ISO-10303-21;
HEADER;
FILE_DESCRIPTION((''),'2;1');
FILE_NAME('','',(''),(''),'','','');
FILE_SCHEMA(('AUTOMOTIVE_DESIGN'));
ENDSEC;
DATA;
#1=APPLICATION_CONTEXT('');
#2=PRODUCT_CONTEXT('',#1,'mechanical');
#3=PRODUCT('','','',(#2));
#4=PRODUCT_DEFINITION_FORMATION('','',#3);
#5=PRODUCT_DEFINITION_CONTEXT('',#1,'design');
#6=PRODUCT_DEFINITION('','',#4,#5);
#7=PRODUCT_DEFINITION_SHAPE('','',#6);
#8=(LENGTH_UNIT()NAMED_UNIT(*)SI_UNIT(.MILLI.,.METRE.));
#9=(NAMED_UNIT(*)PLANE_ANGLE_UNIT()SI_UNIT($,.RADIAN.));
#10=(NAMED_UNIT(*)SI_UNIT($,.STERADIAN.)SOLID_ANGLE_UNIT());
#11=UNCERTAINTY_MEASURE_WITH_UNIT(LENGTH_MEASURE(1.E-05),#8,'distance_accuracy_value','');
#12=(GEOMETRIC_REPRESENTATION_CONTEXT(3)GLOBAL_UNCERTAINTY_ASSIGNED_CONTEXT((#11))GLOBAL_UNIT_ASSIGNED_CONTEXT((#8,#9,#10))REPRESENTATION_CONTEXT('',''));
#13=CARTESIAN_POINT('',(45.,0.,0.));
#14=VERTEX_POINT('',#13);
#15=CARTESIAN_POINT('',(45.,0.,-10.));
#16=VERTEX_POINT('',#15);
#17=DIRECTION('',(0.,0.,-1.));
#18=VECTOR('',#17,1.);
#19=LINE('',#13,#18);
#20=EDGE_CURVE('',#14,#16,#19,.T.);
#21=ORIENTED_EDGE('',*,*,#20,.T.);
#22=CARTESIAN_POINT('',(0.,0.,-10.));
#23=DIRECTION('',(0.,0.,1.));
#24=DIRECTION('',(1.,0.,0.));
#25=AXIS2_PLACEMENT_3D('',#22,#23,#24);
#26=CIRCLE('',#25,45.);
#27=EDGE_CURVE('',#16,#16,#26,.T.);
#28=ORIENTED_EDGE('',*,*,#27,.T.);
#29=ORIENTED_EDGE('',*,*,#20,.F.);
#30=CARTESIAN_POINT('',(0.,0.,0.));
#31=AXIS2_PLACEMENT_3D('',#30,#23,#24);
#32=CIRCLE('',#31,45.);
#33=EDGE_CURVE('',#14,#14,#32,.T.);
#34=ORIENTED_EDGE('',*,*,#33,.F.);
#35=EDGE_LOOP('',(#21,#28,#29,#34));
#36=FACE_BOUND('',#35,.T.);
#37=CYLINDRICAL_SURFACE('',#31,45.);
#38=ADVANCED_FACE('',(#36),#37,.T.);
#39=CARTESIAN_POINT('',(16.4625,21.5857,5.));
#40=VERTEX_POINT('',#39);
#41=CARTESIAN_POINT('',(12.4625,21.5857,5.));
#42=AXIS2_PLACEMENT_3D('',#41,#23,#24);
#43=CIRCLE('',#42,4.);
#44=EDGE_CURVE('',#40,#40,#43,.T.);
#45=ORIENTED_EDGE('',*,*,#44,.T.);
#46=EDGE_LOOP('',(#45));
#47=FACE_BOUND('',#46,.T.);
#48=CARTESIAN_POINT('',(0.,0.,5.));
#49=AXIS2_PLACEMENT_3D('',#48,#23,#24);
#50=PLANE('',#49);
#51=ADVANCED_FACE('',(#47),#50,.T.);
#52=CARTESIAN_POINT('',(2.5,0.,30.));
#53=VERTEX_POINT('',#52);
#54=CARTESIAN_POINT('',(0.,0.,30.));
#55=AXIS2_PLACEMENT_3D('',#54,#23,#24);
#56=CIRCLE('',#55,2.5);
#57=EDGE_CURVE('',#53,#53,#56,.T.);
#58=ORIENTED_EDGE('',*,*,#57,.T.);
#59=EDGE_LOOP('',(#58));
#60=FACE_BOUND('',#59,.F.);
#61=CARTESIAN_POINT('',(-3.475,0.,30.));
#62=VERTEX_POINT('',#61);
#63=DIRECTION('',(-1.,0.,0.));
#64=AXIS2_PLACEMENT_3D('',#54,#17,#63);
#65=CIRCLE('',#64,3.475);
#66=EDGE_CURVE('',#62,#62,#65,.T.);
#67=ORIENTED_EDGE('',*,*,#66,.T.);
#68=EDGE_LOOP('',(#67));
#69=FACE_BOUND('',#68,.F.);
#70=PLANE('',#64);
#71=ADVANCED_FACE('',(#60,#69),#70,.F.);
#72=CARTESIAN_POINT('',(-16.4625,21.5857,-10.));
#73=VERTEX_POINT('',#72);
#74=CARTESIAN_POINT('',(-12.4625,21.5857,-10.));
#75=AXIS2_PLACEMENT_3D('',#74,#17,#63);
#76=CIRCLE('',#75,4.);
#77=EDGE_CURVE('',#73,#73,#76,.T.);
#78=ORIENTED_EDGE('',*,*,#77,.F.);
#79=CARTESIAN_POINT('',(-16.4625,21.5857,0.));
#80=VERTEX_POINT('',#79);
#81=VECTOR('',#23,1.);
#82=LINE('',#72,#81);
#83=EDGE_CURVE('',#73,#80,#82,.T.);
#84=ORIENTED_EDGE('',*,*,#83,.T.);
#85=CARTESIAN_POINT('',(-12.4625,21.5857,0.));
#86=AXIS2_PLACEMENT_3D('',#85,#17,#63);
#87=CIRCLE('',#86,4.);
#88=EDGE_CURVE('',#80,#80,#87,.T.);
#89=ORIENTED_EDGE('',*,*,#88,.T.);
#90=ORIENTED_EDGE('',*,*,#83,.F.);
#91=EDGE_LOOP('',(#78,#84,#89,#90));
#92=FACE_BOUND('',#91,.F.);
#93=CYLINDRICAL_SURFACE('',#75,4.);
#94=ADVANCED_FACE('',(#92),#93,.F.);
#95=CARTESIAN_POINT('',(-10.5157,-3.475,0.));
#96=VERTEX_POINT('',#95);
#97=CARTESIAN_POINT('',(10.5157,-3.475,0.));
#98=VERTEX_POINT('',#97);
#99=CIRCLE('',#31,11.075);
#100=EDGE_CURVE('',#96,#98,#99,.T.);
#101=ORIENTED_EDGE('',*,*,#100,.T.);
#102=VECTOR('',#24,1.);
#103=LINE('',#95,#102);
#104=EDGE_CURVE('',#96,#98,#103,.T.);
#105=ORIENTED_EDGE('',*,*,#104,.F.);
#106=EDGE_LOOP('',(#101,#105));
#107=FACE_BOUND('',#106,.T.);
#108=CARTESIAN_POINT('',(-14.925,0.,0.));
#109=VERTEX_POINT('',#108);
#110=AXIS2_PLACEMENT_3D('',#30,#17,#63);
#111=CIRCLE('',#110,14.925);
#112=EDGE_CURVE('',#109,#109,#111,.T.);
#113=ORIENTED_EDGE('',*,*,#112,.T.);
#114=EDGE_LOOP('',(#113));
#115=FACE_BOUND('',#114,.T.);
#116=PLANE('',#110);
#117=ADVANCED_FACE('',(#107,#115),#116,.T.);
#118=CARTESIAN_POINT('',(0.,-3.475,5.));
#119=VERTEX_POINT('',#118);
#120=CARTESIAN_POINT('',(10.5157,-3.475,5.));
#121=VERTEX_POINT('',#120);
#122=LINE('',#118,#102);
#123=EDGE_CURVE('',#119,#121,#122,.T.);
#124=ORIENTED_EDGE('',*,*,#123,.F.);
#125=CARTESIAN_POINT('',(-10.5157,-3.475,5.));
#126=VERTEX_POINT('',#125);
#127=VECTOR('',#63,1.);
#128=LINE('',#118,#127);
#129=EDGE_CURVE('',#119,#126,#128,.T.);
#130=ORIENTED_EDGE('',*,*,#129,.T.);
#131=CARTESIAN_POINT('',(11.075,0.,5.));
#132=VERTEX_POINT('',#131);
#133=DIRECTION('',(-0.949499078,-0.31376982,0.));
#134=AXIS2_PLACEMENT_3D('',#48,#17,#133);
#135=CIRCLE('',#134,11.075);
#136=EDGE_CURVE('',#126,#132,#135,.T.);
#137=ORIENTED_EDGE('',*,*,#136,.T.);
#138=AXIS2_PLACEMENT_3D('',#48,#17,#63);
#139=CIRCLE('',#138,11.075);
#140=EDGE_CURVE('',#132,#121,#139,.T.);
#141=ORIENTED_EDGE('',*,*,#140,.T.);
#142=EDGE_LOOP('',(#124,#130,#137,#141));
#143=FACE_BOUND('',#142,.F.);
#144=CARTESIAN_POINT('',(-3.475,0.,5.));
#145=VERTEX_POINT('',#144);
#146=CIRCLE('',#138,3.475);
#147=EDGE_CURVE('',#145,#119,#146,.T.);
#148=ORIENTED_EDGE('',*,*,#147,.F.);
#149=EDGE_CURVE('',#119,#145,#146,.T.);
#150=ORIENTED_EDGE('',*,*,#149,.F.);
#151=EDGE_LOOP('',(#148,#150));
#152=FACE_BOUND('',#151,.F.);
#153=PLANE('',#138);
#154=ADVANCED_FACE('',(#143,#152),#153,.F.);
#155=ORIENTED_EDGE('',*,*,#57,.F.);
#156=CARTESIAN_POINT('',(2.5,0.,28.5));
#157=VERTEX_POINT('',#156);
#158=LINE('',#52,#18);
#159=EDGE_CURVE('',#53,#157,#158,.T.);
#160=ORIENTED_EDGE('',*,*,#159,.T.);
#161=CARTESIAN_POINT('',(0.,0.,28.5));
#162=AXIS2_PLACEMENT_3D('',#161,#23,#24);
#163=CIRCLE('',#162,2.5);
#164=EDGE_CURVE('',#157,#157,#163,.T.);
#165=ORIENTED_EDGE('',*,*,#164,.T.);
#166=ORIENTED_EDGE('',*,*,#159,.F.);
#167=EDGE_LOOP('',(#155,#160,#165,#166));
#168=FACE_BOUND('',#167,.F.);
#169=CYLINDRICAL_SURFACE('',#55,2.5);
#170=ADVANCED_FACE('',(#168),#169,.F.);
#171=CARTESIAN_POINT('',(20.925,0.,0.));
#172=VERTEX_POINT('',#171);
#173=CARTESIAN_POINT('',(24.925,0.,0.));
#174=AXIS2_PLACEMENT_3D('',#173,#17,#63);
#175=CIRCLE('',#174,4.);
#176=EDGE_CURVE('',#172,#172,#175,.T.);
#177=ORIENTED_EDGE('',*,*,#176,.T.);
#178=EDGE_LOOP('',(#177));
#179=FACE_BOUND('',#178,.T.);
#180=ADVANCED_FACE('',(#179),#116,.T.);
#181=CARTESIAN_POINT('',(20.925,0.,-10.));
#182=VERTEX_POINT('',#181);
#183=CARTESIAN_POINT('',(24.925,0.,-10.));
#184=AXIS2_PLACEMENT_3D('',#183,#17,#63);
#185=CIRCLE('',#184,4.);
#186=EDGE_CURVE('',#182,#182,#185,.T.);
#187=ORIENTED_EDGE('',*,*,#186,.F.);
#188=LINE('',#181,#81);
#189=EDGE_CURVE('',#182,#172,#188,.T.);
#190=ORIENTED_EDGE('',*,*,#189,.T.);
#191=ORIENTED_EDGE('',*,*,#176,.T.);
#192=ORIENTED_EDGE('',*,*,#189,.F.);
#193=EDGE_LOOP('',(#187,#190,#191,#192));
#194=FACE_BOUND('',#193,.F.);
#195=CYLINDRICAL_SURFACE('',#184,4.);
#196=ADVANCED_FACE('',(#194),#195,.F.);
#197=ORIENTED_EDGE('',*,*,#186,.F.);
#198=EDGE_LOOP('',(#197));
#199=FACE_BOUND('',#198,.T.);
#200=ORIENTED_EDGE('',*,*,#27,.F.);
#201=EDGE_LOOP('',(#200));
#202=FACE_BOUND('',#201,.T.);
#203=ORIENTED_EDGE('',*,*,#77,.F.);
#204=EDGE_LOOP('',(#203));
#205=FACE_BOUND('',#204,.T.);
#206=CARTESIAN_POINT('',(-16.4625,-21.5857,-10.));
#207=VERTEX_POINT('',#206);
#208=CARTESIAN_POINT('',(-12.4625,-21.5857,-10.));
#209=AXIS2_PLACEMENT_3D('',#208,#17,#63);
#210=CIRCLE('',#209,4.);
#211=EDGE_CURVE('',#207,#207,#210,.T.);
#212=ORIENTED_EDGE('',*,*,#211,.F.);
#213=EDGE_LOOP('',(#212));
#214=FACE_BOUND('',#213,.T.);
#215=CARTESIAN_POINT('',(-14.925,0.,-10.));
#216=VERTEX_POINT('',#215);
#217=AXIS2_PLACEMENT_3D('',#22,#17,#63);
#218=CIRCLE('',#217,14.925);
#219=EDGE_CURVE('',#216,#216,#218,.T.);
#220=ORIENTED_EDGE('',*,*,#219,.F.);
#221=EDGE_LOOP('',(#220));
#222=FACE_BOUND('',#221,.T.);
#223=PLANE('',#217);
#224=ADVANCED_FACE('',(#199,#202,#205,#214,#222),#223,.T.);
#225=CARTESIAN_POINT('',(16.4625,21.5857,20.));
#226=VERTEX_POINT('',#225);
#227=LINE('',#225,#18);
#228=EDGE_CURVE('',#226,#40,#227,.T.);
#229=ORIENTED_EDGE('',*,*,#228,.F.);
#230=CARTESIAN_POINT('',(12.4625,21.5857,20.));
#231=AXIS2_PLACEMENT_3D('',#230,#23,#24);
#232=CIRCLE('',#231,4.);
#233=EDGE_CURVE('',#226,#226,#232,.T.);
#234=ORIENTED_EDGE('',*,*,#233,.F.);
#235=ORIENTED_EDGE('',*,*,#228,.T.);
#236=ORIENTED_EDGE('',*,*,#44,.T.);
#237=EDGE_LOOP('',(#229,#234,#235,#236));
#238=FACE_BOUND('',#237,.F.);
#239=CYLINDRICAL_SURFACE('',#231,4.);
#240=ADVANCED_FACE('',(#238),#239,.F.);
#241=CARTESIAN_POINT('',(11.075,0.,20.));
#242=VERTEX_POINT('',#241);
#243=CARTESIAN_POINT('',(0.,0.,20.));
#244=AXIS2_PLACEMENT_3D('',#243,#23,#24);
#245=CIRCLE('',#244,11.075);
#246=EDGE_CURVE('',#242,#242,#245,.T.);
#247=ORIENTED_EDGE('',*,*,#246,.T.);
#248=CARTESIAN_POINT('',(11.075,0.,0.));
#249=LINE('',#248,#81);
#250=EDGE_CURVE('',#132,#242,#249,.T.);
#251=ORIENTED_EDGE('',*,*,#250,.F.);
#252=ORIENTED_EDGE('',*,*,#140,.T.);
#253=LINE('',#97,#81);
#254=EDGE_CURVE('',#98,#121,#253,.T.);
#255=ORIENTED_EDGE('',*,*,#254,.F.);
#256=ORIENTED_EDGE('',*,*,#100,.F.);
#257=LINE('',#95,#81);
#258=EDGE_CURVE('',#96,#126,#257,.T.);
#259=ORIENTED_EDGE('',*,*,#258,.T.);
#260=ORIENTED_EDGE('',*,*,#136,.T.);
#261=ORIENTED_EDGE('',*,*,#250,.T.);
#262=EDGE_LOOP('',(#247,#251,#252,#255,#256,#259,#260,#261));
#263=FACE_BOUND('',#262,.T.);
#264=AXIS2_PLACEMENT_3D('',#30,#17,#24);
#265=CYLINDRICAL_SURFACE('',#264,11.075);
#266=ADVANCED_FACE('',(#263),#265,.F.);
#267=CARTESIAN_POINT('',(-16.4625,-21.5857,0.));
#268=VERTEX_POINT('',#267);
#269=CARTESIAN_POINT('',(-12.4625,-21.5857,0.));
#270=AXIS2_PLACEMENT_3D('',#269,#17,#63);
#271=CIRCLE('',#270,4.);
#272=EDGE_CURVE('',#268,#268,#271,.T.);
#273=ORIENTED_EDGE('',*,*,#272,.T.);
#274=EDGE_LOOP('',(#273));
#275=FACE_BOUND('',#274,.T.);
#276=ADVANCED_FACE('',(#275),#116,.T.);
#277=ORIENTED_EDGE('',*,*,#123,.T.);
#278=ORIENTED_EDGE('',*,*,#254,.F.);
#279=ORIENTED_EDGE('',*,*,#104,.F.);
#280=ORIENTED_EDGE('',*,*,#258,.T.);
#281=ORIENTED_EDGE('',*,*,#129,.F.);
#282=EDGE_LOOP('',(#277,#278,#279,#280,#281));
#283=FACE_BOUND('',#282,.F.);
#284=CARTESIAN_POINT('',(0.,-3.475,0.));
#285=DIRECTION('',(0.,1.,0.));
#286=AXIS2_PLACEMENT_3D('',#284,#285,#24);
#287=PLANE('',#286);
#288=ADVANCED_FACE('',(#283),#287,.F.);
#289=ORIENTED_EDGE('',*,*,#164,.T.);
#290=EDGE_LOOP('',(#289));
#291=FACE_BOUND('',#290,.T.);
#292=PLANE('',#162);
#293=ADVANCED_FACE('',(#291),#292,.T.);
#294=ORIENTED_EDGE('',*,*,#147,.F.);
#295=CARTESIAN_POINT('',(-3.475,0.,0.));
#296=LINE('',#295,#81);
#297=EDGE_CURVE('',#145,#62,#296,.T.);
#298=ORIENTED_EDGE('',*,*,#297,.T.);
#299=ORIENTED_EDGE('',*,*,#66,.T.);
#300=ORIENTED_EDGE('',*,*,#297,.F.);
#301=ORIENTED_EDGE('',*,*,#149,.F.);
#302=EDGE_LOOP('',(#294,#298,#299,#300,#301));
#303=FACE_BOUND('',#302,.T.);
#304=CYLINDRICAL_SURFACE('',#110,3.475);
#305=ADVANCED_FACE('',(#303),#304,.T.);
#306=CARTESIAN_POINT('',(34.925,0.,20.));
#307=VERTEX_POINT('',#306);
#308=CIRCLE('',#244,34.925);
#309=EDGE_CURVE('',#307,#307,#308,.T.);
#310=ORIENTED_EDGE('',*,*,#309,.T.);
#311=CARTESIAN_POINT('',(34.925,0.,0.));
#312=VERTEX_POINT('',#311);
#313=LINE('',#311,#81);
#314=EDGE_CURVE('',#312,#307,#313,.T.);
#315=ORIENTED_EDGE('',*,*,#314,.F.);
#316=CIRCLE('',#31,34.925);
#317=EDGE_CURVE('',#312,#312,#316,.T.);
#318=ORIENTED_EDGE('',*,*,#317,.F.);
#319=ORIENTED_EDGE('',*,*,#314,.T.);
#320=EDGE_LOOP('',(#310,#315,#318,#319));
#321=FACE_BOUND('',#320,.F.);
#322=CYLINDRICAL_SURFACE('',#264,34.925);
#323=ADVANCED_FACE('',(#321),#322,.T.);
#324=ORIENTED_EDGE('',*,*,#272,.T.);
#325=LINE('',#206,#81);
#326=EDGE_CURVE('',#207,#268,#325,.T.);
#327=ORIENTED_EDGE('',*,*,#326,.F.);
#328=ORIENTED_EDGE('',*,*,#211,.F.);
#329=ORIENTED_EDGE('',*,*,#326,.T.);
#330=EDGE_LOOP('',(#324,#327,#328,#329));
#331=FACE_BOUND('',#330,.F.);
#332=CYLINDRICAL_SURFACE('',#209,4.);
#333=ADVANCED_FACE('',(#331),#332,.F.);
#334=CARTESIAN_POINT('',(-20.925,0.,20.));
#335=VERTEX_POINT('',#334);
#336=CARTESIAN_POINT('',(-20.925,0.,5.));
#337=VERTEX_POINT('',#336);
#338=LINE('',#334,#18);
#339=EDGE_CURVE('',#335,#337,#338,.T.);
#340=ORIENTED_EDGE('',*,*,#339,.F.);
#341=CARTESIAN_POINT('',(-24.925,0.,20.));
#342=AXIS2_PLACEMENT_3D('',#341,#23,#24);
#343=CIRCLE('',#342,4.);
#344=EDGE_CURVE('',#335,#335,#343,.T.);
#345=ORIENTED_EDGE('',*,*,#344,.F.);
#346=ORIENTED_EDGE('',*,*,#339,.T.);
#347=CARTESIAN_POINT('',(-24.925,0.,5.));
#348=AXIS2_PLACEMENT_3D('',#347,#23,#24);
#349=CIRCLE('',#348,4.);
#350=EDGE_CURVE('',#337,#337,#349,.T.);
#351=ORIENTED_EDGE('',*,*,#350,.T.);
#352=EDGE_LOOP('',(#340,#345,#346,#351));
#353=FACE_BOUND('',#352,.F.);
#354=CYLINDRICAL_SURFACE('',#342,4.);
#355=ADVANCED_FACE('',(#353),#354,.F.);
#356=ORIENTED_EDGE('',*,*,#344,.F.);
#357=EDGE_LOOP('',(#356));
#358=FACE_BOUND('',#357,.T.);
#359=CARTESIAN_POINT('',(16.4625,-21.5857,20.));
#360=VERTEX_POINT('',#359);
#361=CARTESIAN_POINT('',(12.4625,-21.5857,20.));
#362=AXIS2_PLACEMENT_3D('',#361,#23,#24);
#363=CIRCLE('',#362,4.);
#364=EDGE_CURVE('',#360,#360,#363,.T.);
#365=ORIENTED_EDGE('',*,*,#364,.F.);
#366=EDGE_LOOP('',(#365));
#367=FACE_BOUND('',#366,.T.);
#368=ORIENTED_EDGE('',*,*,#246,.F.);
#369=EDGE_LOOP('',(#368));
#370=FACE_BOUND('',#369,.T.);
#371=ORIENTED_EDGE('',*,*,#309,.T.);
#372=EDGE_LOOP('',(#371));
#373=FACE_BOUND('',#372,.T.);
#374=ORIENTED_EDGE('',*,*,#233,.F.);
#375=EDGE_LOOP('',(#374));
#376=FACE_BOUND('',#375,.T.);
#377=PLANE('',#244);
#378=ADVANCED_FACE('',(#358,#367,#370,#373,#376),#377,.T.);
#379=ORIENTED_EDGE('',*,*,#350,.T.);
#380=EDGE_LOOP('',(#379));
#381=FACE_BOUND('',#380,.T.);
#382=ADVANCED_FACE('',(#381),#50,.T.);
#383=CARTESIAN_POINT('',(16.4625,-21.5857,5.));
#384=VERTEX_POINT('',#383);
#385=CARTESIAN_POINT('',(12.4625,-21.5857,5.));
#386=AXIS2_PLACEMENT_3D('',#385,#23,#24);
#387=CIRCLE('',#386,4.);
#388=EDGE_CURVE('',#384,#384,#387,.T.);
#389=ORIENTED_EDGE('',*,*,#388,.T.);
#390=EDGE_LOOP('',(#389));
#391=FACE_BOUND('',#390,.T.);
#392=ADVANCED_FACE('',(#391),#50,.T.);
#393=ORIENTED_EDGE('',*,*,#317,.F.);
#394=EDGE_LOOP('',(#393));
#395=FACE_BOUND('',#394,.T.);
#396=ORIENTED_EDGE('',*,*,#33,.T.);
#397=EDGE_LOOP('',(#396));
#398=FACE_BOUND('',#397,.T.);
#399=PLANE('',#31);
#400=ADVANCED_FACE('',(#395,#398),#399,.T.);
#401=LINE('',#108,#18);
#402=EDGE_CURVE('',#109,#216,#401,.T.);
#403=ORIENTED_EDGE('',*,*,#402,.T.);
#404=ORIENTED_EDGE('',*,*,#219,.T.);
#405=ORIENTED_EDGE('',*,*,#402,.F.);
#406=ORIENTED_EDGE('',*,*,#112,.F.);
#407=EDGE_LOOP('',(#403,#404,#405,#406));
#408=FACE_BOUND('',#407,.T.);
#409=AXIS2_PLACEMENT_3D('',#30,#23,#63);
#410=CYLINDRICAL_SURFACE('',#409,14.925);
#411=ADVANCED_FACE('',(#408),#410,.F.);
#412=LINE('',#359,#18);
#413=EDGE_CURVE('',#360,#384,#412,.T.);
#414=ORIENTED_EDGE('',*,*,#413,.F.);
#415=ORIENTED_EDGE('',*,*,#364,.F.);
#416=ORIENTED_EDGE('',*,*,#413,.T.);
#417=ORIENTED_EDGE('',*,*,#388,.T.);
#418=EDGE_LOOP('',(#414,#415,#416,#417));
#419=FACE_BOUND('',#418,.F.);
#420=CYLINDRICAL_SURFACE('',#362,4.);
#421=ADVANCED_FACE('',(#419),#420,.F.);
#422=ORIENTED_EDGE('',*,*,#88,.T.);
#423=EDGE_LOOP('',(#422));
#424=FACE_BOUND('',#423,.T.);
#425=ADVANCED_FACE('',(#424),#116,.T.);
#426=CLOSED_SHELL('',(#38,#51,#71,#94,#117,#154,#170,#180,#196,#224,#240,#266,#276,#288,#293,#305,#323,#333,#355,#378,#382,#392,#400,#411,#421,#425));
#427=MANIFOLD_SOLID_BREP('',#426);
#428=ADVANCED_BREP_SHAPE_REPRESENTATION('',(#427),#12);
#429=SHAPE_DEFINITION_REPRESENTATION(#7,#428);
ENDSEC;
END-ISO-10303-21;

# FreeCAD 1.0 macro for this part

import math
import FreeCAD as App
import Part
import Sketcher

V = App.Vector

doc = App.newDocument("Part")
body = doc.addObject("PartDesign::Body", "Body")
body.AllowCompound = True

# Sketch on XY plane
sketch1 = doc.addObject("Sketcher::SketchObject", "Sketch")
body.addObject(sketch1)
sketch1.AttachmentSupport = (doc.XY_Plane, [""])
sketch1.MapMode = "FlatFace"
sketch1.addGeometry([
    Part.Circle(V(0, 0, 0), V(0, 0, 1), 35),
    Part.Circle(V(0, 0, 0), V(0, 0, 1), 11),
], False)
sketch1.addConstraint([
    Sketcher.Constraint("Coincident", 0, 3, -1, 1),
    Sketcher.Constraint("Coincident", 1, 3, -1, 1),
    Sketcher.Constraint("Diameter", 0, 69.85),
    Sketcher.Constraint("Diameter", 1, 22.15),
])
pad1 = doc.addObject("PartDesign::Pad", "Pad")
body.addObject(pad1)
pad1.Profile = sketch1
pad1.Length = 20

# Sketch on XY plane
sketch2 = doc.addObject("Sketcher::SketchObject", "Sketch001")
body.addObject(sketch2)
sketch2.AttachmentSupport = (doc.XY_Plane, [""])
sketch2.MapMode = "FlatFace"
sketch2.addGeometry([
    Part.Circle(V(0, 0, 0), V(0, 0, 1), 45),
    Part.Circle(V(0, 0, 0), V(0, 0, 1), 35),
], False)
sketch2.addConstraint([
    Sketcher.Constraint("Coincident", 0, 3, -1, 1),
    Sketcher.Constraint("Coincident", 1, 3, -1, 1),
    Sketcher.Constraint("Diameter", 0, 90.0),
    Sketcher.Constraint("Diameter", 1, 69.85),
])
pad2 = doc.addObject("PartDesign::Pad", "Pad001")
body.addObject(pad2)
pad2.Profile = sketch2
pad2.Length = 10
pad2.Reversed = True

# Sketch on XY plane
sketch3 = doc.addObject("Sketcher::SketchObject", "Sketch002")
body.addObject(sketch3)
sketch3.AttachmentSupport = (doc.XY_Plane, [""])
sketch3.MapMode = "FlatFace"
sketch3.AttachmentOffset = App.Placement(V(0, 0, 20), App.Rotation())
sketch3.addGeometry([
    Part.Circle(V(12.5, 21.6, 0), V(0, 0, 1), 4),
    Part.Circle(V(-24.9, 0, 0), V(0, 0, 1), 4),
    Part.Circle(V(12.5, -21.6, 0), V(0, 0, 1), 4),
], False)
sketch3.addConstraint([
    Sketcher.Constraint("Equal", 0, 1),
    Sketcher.Constraint("Equal", 1, 2),
    Sketcher.Constraint("Symmetric", 0, 3, 2, 3, -1),
    Sketcher.Constraint("PointOnObject", 1, 3, -1),
    Sketcher.Constraint("Diameter", 0, 8.0),
    Sketcher.Constraint("DistanceX", 1, 3, -1, 1, 24.925),
    Sketcher.Constraint("DistanceX", -1, 1, 0, 3, 12.4625),
    Sketcher.Constraint("DistanceY", -1, 1, 0, 3, 21.5857),
])
pocket1 = doc.addObject("PartDesign::Pocket", "Pocket")
body.addObject(pocket1)
pocket1.Profile = sketch3
pocket1.Length = 15

# Sketch on XY plane
sketch4 = doc.addObject("Sketcher::SketchObject", "Sketch003")
body.addObject(sketch4)
sketch4.AttachmentSupport = (doc.XY_Plane, [""])
sketch4.MapMode = "FlatFace"
sketch4.addGeometry([
    Part.LineSegment(V(10.5, -3.5, 0), V(0, -3.5, 0)),
    Part.LineSegment(V(0, -3.5, 0), V(-10.5, -3.5, 0)),
    Part.ArcOfCircle(Part.Circle(V(0, 0, 0), V(0, 0, 1), 11.1), math.radians(-18), math.radians(198)),
    Part.Circle(V(0, 0, 0), V(0, 0, 1), 3.5),
], False)
sketch4.addConstraint([
    Sketcher.Constraint("Coincident", 0, 2, 1, 1),
    Sketcher.Constraint("Coincident", 1, 2, 2, 2),
    Sketcher.Constraint("Coincident", 2, 1, 0, 1),
    Sketcher.Constraint("Horizontal", 0),
    Sketcher.Constraint("Horizontal", 1),
    Sketcher.Constraint("Coincident", 2, 3, -1, 1),
    Sketcher.Constraint("Coincident", 3, 3, -1, 1),
    Sketcher.Constraint("PointOnObject", 0, 2, -2),
    Sketcher.Constraint("Diameter", 3, 6.95),
    Sketcher.Constraint("Radius", 2, 11.075),
    Sketcher.Constraint("DistanceX", 0, 2, 0, 1, 10.5157),
])
pad3 = doc.addObject("PartDesign::Pad", "Pad002")
body.addObject(pad3)
pad3.Profile = sketch4
pad3.Length = 5

# Sketch on XY plane
sketch5 = doc.addObject("Sketcher::SketchObject", "Sketch004")
body.addObject(sketch5)
sketch5.AttachmentSupport = (doc.XY_Plane, [""])
sketch5.MapMode = "FlatFace"
sketch5.addGeometry(Part.Circle(V(0, 0, 0), V(0, 0, 1), 3.5), False)
sketch5.addConstraint([
    Sketcher.Constraint("Coincident", 0, 3, -1, 1),
    Sketcher.Constraint("Diameter", 0, 6.95),
])
pad4 = doc.addObject("PartDesign::Pad", "Pad003")
body.addObject(pad4)
pad4.Profile = sketch5
pad4.Length = 30

# Sketch on XY plane
sketch6 = doc.addObject("Sketcher::SketchObject", "Sketch005")
body.addObject(sketch6)
sketch6.AttachmentSupport = (doc.XY_Plane, [""])
sketch6.MapMode = "FlatFace"
sketch6.AttachmentOffset = App.Placement(V(0, 0, 30), App.Rotation())
sketch6.addGeometry(Part.Circle(V(0, 0, 0), V(0, 0, 1), 2.5), False)
sketch6.addConstraint([
    Sketcher.Constraint("Coincident", 0, 3, -1, 1),
    Sketcher.Constraint("Diameter", 0, 5.0),
])
pocket2 = doc.addObject("PartDesign::Pocket", "Pocket001")
body.addObject(pocket2)
pocket2.Profile = sketch6
pocket2.Length = 1.5

# Sketch on XY plane
sketch7 = doc.addObject("Sketcher::SketchObject", "Sketch006")
body.addObject(sketch7)
sketch7.AttachmentSupport = (doc.XY_Plane, [""])
sketch7.MapMode = "FlatFace"
sketch7.addGeometry([
    Part.Circle(V(0, 0, 0), V(0, 0, 1), 35),
    Part.Circle(V(0, 0, 0), V(0, 0, 1), 15),
], False)
sketch7.addConstraint([
    Sketcher.Constraint("Coincident", 0, 3, -1, 1),
    Sketcher.Constraint("Coincident", 1, 3, -1, 1),
    Sketcher.Constraint("Diameter", 0, 69.85),
    Sketcher.Constraint("Diameter", 1, 29.85),
])
pad5 = doc.addObject("PartDesign::Pad", "Pad004")
body.addObject(pad5)
pad5.Profile = sketch7
pad5.Length = 10
pad5.Reversed = True

# Sketch on XY plane
sketch8 = doc.addObject("Sketcher::SketchObject", "Sketch007")
body.addObject(sketch8)
sketch8.AttachmentSupport = (doc.XY_Plane, [""])
sketch8.MapMode = "FlatFace"
sketch8.AttachmentOffset = App.Placement(V(0, 0, -10), App.Rotation())
sketch8.addGeometry([
    Part.Circle(V(-12.5, 21.6, 0), V(0, 0, 1), 4),
    Part.Circle(V(24.9, 0, 0), V(0, 0, 1), 4),
    Part.Circle(V(-12.5, -21.6, 0), V(0, 0, 1), 4),
], False)
sketch8.addConstraint([
    Sketcher.Constraint("Equal", 0, 1),
    Sketcher.Constraint("Equal", 1, 2),
    Sketcher.Constraint("Symmetric", 0, 3, 2, 3, -1),
    Sketcher.Constraint("PointOnObject", 1, 3, -1),
    Sketcher.Constraint("Diameter", 0, 8.0),
    Sketcher.Constraint("DistanceX", -1, 1, 1, 3, 24.925),
    Sketcher.Constraint("DistanceX", 0, 3, -1, 1, 12.4625),
    Sketcher.Constraint("DistanceY", -1, 1, 0, 3, 21.5857),
])
pocket3 = doc.addObject("PartDesign::Pocket", "Pocket002")
body.addObject(pocket3)
pocket3.Profile = sketch8
pocket3.Length = 10
pocket3.Reversed = True

doc.recompute()
